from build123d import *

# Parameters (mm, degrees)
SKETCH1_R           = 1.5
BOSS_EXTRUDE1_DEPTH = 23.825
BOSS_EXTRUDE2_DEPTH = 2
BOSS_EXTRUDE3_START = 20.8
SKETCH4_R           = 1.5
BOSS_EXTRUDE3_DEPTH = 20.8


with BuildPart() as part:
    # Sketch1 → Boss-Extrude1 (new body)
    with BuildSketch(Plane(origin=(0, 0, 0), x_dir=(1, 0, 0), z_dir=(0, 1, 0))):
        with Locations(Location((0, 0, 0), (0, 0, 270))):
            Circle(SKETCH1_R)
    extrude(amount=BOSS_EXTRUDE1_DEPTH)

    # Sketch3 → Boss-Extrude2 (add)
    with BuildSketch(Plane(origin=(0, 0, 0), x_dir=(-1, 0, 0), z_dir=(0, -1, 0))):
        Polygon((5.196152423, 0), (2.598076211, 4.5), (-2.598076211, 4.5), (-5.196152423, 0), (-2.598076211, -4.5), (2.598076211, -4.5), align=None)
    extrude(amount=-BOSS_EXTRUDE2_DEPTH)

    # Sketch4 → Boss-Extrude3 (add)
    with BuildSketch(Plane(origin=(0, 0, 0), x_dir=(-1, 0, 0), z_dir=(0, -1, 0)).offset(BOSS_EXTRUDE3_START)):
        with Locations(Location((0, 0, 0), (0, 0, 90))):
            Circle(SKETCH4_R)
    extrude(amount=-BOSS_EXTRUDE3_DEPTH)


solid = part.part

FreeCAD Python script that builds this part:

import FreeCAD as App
import Part
import Sketcher
Q = App.Units.Quantity

doc = App.newDocument("Part")
body = doc.addObject("PartDesign::Body", "Body")

# Sketch on XZ plane
sketch1 = doc.addObject("Sketcher::SketchObject", "Sketch")
body.addObject(sketch1)
sketch1.AttachmentSupport = (doc.XZ_Plane, [""])
sketch1.MapMode = "FlatFace"
sketch1.addGeometry(Part.Circle(App.Vector(0, 0, 0), App.Vector(0, 0, 1), 1.5), False)
sketch1.addConstraint(Sketcher.Constraint("Coincident", 0, 3, -1, 1))
sketch1.addConstraint(Sketcher.Constraint("Diameter", 0, Q("3 mm")))
pad1 = doc.addObject("PartDesign::Pad", "Pad")
body.addObject(pad1)
pad1.Profile = sketch1
pad1.Length = 23.825
pad1.Reversed = True

# Sketch on XZ plane
sketch2 = doc.addObject("Sketcher::SketchObject", "Sketch001")
body.addObject(sketch2)
sketch2.AttachmentSupport = (doc.XZ_Plane, [""])
sketch2.MapMode = "FlatFace"
sketch2.addGeometry(Part.LineSegment(App.Vector(-5.196152, 0, 0), App.Vector(-2.598076, -4.5, 0)), False)
sketch2.addGeometry(Part.LineSegment(App.Vector(-2.598076, -4.5, 0), App.Vector(2.598076, -4.5, 0)), False)
sketch2.addGeometry(Part.LineSegment(App.Vector(2.598076, -4.5, 0), App.Vector(5.196152, 0, 0)), False)
sketch2.addGeometry(Part.LineSegment(App.Vector(5.196152, 0, 0), App.Vector(2.598076, 4.5, 0)), False)
sketch2.addGeometry(Part.LineSegment(App.Vector(2.598076, 4.5, 0), App.Vector(-2.598076, 4.5, 0)), False)
sketch2.addGeometry(Part.LineSegment(App.Vector(-2.598076, 4.5, 0), App.Vector(-5.196152, 0, 0)), False)
sketch2.addConstraint(Sketcher.Constraint("Coincident", 0, 2, 1, 1))
sketch2.addConstraint(Sketcher.Constraint("Coincident", 1, 2, 2, 1))
sketch2.addConstraint(Sketcher.Constraint("Coincident", 2, 2, 3, 1))
sketch2.addConstraint(Sketcher.Constraint("Coincident", 3, 2, 4, 1))
sketch2.addConstraint(Sketcher.Constraint("Coincident", 4, 2, 5, 1))
sketch2.addConstraint(Sketcher.Constraint("Coincident", 5, 2, 0, 1))
sketch2.addConstraint(Sketcher.Constraint("Horizontal", 1))
sketch2.addConstraint(Sketcher.Constraint("Horizontal", 4))
sketch2.addConstraint(Sketcher.Constraint("Symmetric", 0, 2, 3, 2, -1, 1))
sketch2.addConstraint(Sketcher.Constraint("Symmetric", 2, 2, 5, 2, -1, 1))
sketch2.addConstraint(Sketcher.Constraint("PointOnObject", 2, 2, -1))
sketch2.addConstraint(Sketcher.Constraint("Parallel", 2, 5))
sketch2.addConstraint(Sketcher.Constraint("Vertical", 1, 2, 3, 2))
sketch2.addConstraint(Sketcher.Constraint("Angle", 0, Q("-60 deg")))
sketch2.addConstraint(Sketcher.Constraint("DistanceY", 1, 2, 3, 2, Q("9 mm")))
sketch2.addConstraint(Sketcher.Constraint("DistanceX", 1, 1, 1, 2, Q("5.196152 mm")))
pad2 = doc.addObject("PartDesign::Pad", "Pad001")
body.addObject(pad2)
pad2.Profile = sketch2
pad2.Length = 2
pad2.Reversed = True

# Sketch on XZ plane
sketch3 = doc.addObject("Sketcher::SketchObject", "Sketch002")
body.addObject(sketch3)
sketch3.AttachmentSupport = (doc.XZ_Plane, [""])
sketch3.MapMode = "FlatFace"
sketch3.AttachmentOffset = App.Placement(App.Vector(0, 0, 20.8), App.Rotation())
sketch3.addGeometry(Part.Circle(App.Vector(0, 0, 0), App.Vector(0, 0, 1), 1.5), False)
sketch3.addConstraint(Sketcher.Constraint("Coincident", 0, 3, -1, 1))
sketch3.addConstraint(Sketcher.Constraint("Diameter", 0, Q("3 mm")))
pad3 = doc.addObject("PartDesign::Pad", "Pad002")
body.addObject(pad3)
pad3.Profile = sketch3
pad3.Length = 20.8
pad3.Reversed = True

doc.recompute()
